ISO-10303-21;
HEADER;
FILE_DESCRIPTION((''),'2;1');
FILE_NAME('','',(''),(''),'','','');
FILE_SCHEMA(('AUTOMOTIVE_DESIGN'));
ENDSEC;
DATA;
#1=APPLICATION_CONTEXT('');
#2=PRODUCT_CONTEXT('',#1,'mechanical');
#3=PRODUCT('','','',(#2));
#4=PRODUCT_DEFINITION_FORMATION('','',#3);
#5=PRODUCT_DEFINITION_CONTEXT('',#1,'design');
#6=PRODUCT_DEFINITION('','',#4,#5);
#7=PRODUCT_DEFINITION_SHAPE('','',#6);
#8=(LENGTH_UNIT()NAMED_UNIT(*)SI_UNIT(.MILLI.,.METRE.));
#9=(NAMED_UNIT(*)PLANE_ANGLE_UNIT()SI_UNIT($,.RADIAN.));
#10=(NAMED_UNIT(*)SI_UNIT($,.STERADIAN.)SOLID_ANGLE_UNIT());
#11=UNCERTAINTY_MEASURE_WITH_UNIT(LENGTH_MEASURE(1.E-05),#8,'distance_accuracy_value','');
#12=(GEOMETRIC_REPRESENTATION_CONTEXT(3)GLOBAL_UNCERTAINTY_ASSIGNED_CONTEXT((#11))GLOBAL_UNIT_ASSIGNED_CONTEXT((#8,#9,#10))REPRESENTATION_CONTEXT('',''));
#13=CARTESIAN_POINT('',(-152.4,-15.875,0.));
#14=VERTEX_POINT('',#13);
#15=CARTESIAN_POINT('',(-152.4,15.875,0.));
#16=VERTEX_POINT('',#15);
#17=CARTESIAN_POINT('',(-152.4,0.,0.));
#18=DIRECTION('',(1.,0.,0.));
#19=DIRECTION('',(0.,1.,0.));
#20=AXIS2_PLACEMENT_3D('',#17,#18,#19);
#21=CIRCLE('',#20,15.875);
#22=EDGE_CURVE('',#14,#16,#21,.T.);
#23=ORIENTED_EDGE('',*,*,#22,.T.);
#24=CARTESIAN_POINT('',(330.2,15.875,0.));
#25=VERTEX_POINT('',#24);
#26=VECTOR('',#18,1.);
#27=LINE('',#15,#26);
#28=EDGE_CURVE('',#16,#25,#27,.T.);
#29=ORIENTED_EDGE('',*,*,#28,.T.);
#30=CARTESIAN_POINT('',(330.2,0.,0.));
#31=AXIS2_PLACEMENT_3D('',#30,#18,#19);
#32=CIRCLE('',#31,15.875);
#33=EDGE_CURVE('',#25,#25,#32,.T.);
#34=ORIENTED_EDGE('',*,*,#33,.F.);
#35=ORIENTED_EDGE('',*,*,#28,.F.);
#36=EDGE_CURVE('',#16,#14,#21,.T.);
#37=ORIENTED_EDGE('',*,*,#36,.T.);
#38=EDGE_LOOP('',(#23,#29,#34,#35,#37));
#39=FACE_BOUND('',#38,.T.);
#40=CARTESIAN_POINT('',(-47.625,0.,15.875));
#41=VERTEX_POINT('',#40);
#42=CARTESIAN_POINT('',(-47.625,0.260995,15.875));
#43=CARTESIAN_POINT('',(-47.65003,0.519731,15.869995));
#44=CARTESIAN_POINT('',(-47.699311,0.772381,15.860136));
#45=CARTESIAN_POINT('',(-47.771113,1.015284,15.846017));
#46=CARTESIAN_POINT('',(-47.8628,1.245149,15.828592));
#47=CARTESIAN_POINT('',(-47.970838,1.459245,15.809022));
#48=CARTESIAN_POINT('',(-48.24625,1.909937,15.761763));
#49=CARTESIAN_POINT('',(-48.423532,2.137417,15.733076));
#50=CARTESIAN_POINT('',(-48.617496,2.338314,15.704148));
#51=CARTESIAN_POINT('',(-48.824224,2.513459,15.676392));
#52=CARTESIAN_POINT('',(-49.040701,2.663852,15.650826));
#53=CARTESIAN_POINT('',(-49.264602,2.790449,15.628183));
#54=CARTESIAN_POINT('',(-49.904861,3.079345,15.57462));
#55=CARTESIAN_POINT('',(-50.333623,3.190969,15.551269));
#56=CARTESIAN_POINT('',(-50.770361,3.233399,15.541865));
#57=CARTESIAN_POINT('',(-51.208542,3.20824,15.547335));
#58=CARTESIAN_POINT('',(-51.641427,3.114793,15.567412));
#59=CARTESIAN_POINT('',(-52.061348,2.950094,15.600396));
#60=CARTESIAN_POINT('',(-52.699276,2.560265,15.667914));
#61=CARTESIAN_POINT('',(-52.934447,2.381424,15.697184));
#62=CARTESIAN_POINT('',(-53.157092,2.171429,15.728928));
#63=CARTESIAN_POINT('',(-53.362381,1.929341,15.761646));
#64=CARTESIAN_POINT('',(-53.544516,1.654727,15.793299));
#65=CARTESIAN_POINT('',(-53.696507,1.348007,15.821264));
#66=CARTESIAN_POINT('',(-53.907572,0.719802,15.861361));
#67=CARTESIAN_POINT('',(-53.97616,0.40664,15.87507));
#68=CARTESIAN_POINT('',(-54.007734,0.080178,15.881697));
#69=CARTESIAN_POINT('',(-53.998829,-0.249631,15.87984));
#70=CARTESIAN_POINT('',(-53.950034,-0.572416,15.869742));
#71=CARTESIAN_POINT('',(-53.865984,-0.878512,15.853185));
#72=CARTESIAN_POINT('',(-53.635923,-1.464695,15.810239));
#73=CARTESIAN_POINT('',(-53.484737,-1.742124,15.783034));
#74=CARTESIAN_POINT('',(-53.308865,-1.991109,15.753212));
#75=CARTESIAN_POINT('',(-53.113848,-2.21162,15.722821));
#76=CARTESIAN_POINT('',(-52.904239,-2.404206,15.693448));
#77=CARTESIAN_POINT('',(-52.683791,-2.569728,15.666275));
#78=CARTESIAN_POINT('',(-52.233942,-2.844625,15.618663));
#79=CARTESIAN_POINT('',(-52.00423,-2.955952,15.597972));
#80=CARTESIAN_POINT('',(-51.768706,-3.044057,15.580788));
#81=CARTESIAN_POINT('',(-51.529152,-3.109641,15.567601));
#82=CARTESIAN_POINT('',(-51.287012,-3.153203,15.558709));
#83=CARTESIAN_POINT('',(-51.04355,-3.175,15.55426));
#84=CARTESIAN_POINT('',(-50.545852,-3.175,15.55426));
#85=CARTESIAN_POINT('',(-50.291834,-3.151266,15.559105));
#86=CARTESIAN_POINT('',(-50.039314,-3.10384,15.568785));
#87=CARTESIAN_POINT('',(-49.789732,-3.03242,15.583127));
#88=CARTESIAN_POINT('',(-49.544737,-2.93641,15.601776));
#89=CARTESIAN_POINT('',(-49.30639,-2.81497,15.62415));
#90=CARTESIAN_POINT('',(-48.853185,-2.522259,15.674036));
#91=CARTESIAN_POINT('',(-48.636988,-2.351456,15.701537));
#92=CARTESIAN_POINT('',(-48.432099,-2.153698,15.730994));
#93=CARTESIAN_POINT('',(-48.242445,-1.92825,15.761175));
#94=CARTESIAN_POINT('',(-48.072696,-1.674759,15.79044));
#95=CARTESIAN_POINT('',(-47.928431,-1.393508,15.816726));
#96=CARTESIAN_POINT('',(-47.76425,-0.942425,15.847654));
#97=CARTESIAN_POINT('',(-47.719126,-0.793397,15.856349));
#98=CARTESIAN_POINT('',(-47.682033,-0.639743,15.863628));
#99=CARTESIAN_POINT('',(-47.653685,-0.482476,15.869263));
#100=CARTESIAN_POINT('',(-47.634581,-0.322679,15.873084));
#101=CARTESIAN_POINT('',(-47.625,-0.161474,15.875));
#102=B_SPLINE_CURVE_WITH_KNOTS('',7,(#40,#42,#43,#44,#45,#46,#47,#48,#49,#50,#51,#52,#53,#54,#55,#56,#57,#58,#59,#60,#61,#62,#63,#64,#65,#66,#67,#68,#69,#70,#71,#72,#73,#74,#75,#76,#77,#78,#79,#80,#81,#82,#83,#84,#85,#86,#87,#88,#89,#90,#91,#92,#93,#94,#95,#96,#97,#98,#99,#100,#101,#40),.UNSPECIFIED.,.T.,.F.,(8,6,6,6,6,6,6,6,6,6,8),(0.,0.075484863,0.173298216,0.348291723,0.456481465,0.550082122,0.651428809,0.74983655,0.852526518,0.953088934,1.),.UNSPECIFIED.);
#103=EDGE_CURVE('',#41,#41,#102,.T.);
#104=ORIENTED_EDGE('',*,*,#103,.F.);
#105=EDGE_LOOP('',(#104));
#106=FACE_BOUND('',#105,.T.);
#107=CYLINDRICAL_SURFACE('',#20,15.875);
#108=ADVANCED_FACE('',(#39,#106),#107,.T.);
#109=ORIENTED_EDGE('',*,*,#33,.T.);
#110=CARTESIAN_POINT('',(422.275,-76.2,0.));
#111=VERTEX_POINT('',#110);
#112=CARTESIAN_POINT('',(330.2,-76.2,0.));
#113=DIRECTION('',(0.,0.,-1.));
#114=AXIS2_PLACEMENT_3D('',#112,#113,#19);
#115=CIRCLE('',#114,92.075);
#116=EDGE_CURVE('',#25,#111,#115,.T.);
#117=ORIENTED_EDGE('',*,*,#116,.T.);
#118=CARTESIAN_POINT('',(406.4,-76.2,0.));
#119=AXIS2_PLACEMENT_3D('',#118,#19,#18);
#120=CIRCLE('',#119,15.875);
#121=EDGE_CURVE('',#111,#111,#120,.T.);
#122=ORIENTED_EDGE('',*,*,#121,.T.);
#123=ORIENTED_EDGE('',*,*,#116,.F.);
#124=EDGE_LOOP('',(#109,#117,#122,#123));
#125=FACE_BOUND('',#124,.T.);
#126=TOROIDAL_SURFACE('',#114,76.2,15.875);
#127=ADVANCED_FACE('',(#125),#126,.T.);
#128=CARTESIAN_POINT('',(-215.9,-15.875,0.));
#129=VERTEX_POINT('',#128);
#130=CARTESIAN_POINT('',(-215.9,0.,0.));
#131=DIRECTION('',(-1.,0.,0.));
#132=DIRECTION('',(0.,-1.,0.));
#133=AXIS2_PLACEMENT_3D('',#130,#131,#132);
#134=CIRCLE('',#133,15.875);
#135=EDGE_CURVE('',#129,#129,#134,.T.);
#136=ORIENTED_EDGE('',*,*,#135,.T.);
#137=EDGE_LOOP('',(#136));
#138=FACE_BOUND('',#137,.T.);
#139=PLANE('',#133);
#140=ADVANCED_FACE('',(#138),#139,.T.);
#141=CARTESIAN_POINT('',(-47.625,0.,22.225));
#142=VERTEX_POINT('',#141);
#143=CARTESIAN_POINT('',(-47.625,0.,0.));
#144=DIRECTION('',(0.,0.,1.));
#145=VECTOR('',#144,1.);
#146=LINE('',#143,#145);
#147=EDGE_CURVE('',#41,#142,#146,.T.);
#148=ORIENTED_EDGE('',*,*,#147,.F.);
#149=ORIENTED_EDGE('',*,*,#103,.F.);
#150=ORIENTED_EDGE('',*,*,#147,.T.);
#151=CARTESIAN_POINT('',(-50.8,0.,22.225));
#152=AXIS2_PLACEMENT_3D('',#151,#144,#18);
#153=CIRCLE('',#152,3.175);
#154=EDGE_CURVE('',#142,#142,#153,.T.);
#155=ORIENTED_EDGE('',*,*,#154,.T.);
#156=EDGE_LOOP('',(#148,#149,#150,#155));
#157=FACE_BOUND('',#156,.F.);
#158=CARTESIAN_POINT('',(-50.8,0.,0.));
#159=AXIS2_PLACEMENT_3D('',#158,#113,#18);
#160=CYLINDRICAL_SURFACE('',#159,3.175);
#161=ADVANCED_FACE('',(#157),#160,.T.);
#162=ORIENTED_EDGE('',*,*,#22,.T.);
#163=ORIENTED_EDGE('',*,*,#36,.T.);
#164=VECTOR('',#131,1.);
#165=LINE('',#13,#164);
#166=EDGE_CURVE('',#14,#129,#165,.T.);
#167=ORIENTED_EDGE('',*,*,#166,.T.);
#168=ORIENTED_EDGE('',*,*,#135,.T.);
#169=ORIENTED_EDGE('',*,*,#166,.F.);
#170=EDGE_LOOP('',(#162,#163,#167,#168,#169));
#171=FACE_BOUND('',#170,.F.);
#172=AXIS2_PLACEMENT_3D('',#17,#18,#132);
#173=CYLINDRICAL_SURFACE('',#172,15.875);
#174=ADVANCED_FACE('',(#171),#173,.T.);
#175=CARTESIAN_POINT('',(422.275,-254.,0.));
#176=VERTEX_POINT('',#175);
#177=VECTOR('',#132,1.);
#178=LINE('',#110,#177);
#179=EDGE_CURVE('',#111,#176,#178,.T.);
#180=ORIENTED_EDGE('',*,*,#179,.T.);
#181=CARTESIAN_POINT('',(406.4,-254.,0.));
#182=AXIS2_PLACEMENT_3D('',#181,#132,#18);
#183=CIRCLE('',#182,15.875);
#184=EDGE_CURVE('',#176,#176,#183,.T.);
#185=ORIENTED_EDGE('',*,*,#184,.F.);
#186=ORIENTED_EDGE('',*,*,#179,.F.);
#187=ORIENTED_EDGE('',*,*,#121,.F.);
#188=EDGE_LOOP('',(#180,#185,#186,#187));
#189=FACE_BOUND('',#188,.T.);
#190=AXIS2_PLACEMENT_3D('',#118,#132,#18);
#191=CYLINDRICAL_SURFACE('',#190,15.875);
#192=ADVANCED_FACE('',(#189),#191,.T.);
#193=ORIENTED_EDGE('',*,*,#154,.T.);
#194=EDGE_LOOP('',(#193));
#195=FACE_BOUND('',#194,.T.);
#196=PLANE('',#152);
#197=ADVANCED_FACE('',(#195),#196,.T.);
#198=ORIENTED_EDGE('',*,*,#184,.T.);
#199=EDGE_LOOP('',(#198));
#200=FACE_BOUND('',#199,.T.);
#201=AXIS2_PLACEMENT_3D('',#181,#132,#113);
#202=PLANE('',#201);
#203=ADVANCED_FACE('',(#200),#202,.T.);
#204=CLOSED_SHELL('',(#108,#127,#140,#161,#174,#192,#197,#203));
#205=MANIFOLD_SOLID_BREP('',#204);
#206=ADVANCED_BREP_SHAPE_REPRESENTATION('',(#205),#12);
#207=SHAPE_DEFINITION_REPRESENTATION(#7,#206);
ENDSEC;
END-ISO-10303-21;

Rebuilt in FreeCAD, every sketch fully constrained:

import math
import FreeCAD as App
import Part
import Sketcher
Q = App.Units.Quantity

doc = App.newDocument("Part")
body = doc.addObject("PartDesign::Body", "Body")

# Sketch on XZ plane
sketch1 = body.newObject("Sketcher::SketchObject", "Sketch")
sketch1.AttachmentSupport = (doc.getObject("XZ_Plane"), [""])
sketch1.MapMode = "FlatFace"
sketch1.AttachmentOffset = App.Placement(App.Vector(0, 0, 10 * 25.4), App.Rotation())
sketch1.addGeometry(Part.Circle(App.Vector(406, 0, 0), App.Vector(0, 0, 1), 16), False)
sketch1.addConstraint(Sketcher.Constraint("PointOnObject", 0, 3, -1))
sketch1.addConstraint(Sketcher.Constraint("Diameter", 0, Q("1.25 in")))
sketch1.addConstraint(Sketcher.Constraint("DistanceX", -1, 1, 0, 3, Q("16 in")))

# Sketch on XY plane
sketch2 = body.newObject("Sketcher::SketchObject", "Sketch001")
sketch2.AttachmentSupport = (doc.getObject("XY_Plane"), [""])
sketch2.MapMode = "FlatFace"
sketch2.addGeometry(Part.LineSegment(App.Vector(-152, 0, 0), App.Vector(330, 0, 0)), False)
sketch2.addGeometry(Part.ArcOfCircle(Part.Circle(App.Vector(330, -76, 0), App.Vector(0, 0, 1), 76), math.radians(0), math.radians(90)), False)
sketch2.addGeometry(Part.LineSegment(App.Vector(406, -76, 0), App.Vector(406, -254, 0)), False)
sketch2.addConstraint(Sketcher.Constraint("Tangent", 0, 2, 1, 2))
sketch2.addConstraint(Sketcher.Constraint("Tangent", 1, 1, 2, 1))
sketch2.addConstraint(Sketcher.Constraint("Horizontal", 0))
sketch2.addConstraint(Sketcher.Constraint("Vertical", 2))
sketch2.addConstraint(Sketcher.Constraint("PointOnObject", 0, 1, -1))
sketch2.addConstraint(Sketcher.Constraint("Radius", 1, Q("3 in")))
sketch2.addConstraint(Sketcher.Constraint("DistanceX", 0, 1, 0, 2, Q("19 in")))
sketch2.addConstraint(Sketcher.Constraint("DistanceY", 2, 2, 2, 1, Q("7 in")))
sketch2.addConstraint(Sketcher.Constraint("DistanceX", -1, 1, 1, 3, Q("13 in")))
doc.recompute()

additivepipe = body.newObject("PartDesign::AdditivePipe", "AdditivePipe")
additivepipe.Profile = sketch1
additivepipe.Spine = (sketch2, ["Edge1", "Edge2", "Edge3"])

# Sketch on XY plane
sketch3 = body.newObject("Sketcher::SketchObject", "Sketch002")
sketch3.AttachmentSupport = (doc.getObject("XY_Plane"), [""])
sketch3.MapMode = "FlatFace"
sketch3.addGeometry(Part.Circle(App.Vector(-50.8, 0, 0), App.Vector(0, 0, 1), 3.2), False)
sketch3.addConstraint(Sketcher.Constraint("PointOnObject", 0, 3, -1))
sketch3.addConstraint(Sketcher.Constraint("Diameter", 0, Q("0.25 in")))
sketch3.addConstraint(Sketcher.Constraint("DistanceX", 0, 3, -1, 1, Q("2 in")))
pad1 = body.newObject("PartDesign::Pad", "Pad")
pad1.Profile = sketch3
pad1.Length = Q("0.875 in")

# Sketch on YZ plane
sketch4 = body.newObject("Sketcher::SketchObject", "Sketch003")
sketch4.AttachmentSupport = (doc.getObject("YZ_Plane"), [""])
sketch4.MapMode = "FlatFace"
sketch4.AttachmentOffset = App.Placement(App.Vector(0, 0, -6 * 25.4), App.Rotation())
sketch4.addGeometry(Part.Circle(App.Vector(0, 0, 0), App.Vector(0, 0, 1), 16), False)
sketch4.addConstraint(Sketcher.Constraint("Coincident", 0, 3, -1, 1))
sketch4.addConstraint(Sketcher.Constraint("Diameter", 0, Q("1.25 in")))
pad2 = body.newObject("PartDesign::Pad", "Pad001")
pad2.Profile = sketch4
pad2.Length = Q("2.5 in")
pad2.Reversed = True

doc.recompute()
